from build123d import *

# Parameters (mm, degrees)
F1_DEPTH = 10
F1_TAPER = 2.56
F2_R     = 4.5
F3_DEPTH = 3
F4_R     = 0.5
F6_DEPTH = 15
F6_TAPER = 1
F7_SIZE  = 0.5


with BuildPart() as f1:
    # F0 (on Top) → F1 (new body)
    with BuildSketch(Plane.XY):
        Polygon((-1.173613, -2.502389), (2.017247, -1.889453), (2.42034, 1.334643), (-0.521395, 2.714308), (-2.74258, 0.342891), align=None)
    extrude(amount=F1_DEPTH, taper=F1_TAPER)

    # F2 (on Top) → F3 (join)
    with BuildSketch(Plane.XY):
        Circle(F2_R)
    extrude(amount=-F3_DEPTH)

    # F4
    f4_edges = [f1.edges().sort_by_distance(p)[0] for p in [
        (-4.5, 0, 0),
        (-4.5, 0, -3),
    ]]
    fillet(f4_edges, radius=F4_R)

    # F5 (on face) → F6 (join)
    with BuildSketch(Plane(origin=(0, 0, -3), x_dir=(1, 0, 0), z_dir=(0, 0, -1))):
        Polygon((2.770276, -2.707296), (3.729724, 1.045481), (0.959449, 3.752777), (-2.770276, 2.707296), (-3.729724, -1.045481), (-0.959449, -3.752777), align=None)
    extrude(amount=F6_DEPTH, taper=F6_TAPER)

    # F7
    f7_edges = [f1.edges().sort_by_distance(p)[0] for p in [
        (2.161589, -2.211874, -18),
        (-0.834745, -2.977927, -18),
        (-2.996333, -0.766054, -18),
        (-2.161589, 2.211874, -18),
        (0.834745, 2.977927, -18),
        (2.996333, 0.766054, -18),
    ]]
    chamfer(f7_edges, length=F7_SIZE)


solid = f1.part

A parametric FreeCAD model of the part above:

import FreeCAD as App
import Part
import Sketcher
Q = App.Units.Quantity


def edges_at(feature, points):
    """Names of the edges that pass closest to the given points."""
    edges = feature.Shape.Edges
    near = lambda p: min(range(len(edges)), key=lambda i: edges[i].distToShape(Part.Vertex(*p))[0])
    return sorted({f"Edge{near(p) + 1}" for p in points})


def add_polygon(sketch, points):
    """Adds a closed chain of lines whose ends are joined by coincident constraints."""
    first, n = sketch.GeometryCount, len(points)
    for a, b in zip(points, points[1:] + points[:1]):
        sketch.addGeometry(Part.LineSegment(App.Vector(*a, 0), App.Vector(*b, 0)), False)
    for i in range(n):
        sketch.addConstraint(Sketcher.Constraint("Coincident", first + i, 2, first + (i + 1) % n, 1))

doc = App.newDocument("Part")
params = doc.addObject("Spreadsheet::Sheet", "Params")
for row, (alias, value) in enumerate([
    ("pad1_length", "10 mm"),
    ("pad1_taper", "-2.56 deg"),
    ("sketch2_diameter", "9 mm"),
    ("pad2_length", "3 mm"),
    ("fillet_radius", "0.5 mm"),
    ("pad3_length", "15 mm"),
    ("pad3_taper", "-1 deg"),
    ("chamfer_size", "0.5 mm"),
], start=1):
    params.set(f"A{row}", alias)
    params.set(f"B{row}", "=" + value)
    params.setAlias(f"B{row}", alias)

body = doc.addObject("PartDesign::Body", "Body")

# Sketch on XY plane
sketch1 = doc.addObject("Sketcher::SketchObject", "Sketch")
body.addObject(sketch1)
sketch1.AttachmentSupport = (doc.XY_Plane, [""])
sketch1.MapMode = "FlatFace"
add_polygon(sketch1, [(-1.2, -2.5), (2, -1.9), (2.4, 1.3), (-0.5, 2.7), (-2.7, 0.3)])  # lines 0-4
sketch1.addConstraint([
    Sketcher.Constraint("Equal", 0, 1),
    Sketcher.Constraint("Equal", 1, 2),
    Sketcher.Constraint("Equal", 2, 3),
    Sketcher.Constraint("Equal", 3, 4),
    Sketcher.Constraint("DistanceX", -1, 1, 1, 2, Q("2.42034 mm")),
    Sketcher.Constraint("DistanceY", -1, 1, 2, 2, Q("2.714308 mm")),
    Sketcher.Constraint("DistanceX", 3, 2, -1, 1, Q("2.74258 mm")),
    Sketcher.Constraint("DistanceY", -1, 1, 3, 2, Q("0.342891 mm")),
    Sketcher.Constraint("DistanceY", 4, 2, -1, 1, Q("2.502389 mm")),
    Sketcher.Constraint("DistanceX", 2, 2, 0, 2, Q("2.538642 mm")),
])
pad1 = doc.addObject("PartDesign::Pad", "Pad")
body.addObject(pad1)
pad1.Profile = sketch1
pad1.setExpression("Length", "Params.pad1_length")
pad1.setExpression("TaperAngle", "Params.pad1_taper")

# Sketch on XY plane
sketch2 = doc.addObject("Sketcher::SketchObject", "Sketch001")
body.addObject(sketch2)
sketch2.AttachmentSupport = (doc.XY_Plane, [""])
sketch2.MapMode = "FlatFace"
sketch2.addGeometry(Part.Circle(App.Vector(0, 0, 0), App.Vector(0, 0, 1), 4.5), False)
sketch2.addConstraint([
    Sketcher.Constraint("Coincident", 0, 3, -1, 1),
    Sketcher.Constraint("Diameter", 0, Q("9 mm")),
])
sketch2.setExpression("Constraints[1]", "Params.sketch2_diameter")
pad2 = doc.addObject("PartDesign::Pad", "Pad001")
body.addObject(pad2)
pad2.Profile = sketch2
pad2.setExpression("Length", "Params.pad2_length")
pad2.Reversed = True
doc.recompute()

fillet = doc.addObject("PartDesign::Fillet", "Fillet")
body.addObject(fillet)
fillet.Base = (pad2, edges_at(pad2, [(-4.5, 0, 0), (-4.5, 0, -3)]))
fillet.setExpression("Radius", "Params.fillet_radius")

# Sketch on XY plane
sketch3 = doc.addObject("Sketcher::SketchObject", "Sketch002")
body.addObject(sketch3)
sketch3.AttachmentSupport = (doc.XY_Plane, [""])
sketch3.MapMode = "FlatFace"
sketch3.AttachmentOffset = App.Placement(App.Vector(0, 0, -3), App.Rotation())
add_polygon(sketch3, [(2.8, 2.7), (3.7, -1), (1, -3.8), (-2.8, -2.7), (-3.7, 1), (-1, 3.8)])  # lines 0-5
sketch3.addConstraint([
    Sketcher.Constraint("Symmetric", 0, 2, 3, 2, -1, 1),
    Sketcher.Constraint("Symmetric", 1, 2, 4, 2, -1, 1),
    Sketcher.Constraint("Symmetric", 2, 2, 5, 2, -1, 1),
    Sketcher.Constraint("Equal", 0, 1),
    Sketcher.Constraint("Equal", 1, 2),
    Sketcher.Constraint("DistanceX", 2, 2, 0, 2, Q("6.5 mm")),
    Sketcher.Constraint("DistanceY", 0, 2, -1, 1, Q("1.045481 mm")),
    Sketcher.Constraint("DistanceX", -1, 1, 1, 2, Q("0.959449 mm")),
    Sketcher.Constraint("DistanceY", 1, 2, 2, 2, Q("1.045481 mm")),
])
pad3 = doc.addObject("PartDesign::Pad", "Pad002")
body.addObject(pad3)
pad3.Profile = sketch3
pad3.setExpression("Length", "Params.pad3_length")
pad3.Reversed = True
pad3.setExpression("TaperAngle", "Params.pad3_taper")
doc.recompute()

chamfer = doc.addObject("PartDesign::Chamfer", "Chamfer")
body.addObject(chamfer)
chamfer.Base = (pad3, edges_at(pad3, [
    (2.162, -2.212, -18),
    (-0.835, -2.978, -18),
    (-2.996, -0.766, -18),
    (-2.162, 2.212, -18),
    (0.835, 2.978, -18),
    (2.996, 0.766, -18),
]))
chamfer.setExpression("Size", "Params.chamfer_size")

doc.recompute()
